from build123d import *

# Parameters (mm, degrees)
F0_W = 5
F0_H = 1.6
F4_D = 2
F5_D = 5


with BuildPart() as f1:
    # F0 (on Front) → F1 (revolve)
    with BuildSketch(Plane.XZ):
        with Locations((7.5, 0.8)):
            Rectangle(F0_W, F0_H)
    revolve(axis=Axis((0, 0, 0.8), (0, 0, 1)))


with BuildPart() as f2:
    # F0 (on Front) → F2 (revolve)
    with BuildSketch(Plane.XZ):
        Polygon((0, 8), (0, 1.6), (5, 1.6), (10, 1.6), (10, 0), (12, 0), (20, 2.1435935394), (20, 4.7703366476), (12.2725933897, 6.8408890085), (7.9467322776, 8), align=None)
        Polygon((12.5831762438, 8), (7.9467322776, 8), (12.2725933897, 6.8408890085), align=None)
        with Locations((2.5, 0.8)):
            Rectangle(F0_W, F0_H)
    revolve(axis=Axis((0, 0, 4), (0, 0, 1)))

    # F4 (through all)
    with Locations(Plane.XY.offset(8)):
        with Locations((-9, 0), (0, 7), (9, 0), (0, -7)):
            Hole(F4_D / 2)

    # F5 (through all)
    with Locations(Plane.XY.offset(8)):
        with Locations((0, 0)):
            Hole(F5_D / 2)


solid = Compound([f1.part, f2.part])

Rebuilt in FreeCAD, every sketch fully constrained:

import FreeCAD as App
import Part
import Sketcher
Q = App.Units.Quantity

doc = App.newDocument("Part")
body = doc.addObject("PartDesign::Body", "Body")

# Sketch on XZ plane
sketch1 = body.newObject("Sketcher::SketchObject", "Sketch")
sketch1.AttachmentSupport = (doc.getObject("XZ_Plane"), [""])
sketch1.MapMode = "FlatFace"
sketch1.addGeometry(Part.LineSegment(App.Vector(5, 1.6, 0), App.Vector(5, 0, 0)), False)
sketch1.addGeometry(Part.LineSegment(App.Vector(5, 0, 0), App.Vector(10, 0, 0)), False)
sketch1.addGeometry(Part.LineSegment(App.Vector(10, 0, 0), App.Vector(10, 1.6, 0)), False)
sketch1.addGeometry(Part.LineSegment(App.Vector(10, 1.6, 0), App.Vector(5, 1.6, 0)), False)
sketch1.addConstraint(Sketcher.Constraint("Coincident", 0, 2, 1, 1))
sketch1.addConstraint(Sketcher.Constraint("Coincident", 1, 2, 2, 1))
sketch1.addConstraint(Sketcher.Constraint("Coincident", 2, 2, 3, 1))
sketch1.addConstraint(Sketcher.Constraint("Coincident", 3, 2, 0, 1))
sketch1.addConstraint(Sketcher.Constraint("Vertical", 0))
sketch1.addConstraint(Sketcher.Constraint("Horizontal", 1))
sketch1.addConstraint(Sketcher.Constraint("Vertical", 2))
sketch1.addConstraint(Sketcher.Constraint("Horizontal", 3))
sketch1.addConstraint(Sketcher.Constraint("PointOnObject", 0, 2, -1))
sketch1.addConstraint(Sketcher.Constraint("DistanceX", 1, 1, 1, 2, 5.0))
sketch1.addConstraint(Sketcher.Constraint("DistanceY", 0, 2, 0, 1, 1.6))
sketch1.addConstraint(Sketcher.Constraint("DistanceX", -1, 1, 0, 2, 5.0))
revolution = body.newObject("PartDesign::Revolution", "Revolution")
revolution.Profile = sketch1
revolution.ReferenceAxis = (sketch1, ["V_Axis"])
revolution.Angle = 360
body2 = doc.addObject("PartDesign::Body", "Body001")

# Sketch on XZ plane
sketch2 = body2.newObject("Sketcher::SketchObject", "Sketch001")
sketch2.AttachmentSupport = (doc.getObject("XZ_Plane001"), [""])
sketch2.MapMode = "FlatFace"
sketch2.addGeometry(Part.LineSegment(App.Vector(0, 8, 0), App.Vector(0, 0, 0)), False)
sketch2.addGeometry(Part.LineSegment(App.Vector(0, 0, 0), App.Vector(5, 0, 0)), False)
sketch2.addGeometry(Part.LineSegment(App.Vector(5, 0, 0), App.Vector(5, 1.6, 0)), False)
sketch2.addGeometry(Part.LineSegment(App.Vector(5, 1.6, 0), App.Vector(10, 1.6, 0)), False)
sketch2.addGeometry(Part.LineSegment(App.Vector(10, 1.6, 0), App.Vector(10, 0, 0)), False)
sketch2.addGeometry(Part.LineSegment(App.Vector(10, 0, 0), App.Vector(12, 0, 0)), False)
sketch2.addGeometry(Part.LineSegment(App.Vector(12, 0, 0), App.Vector(20, 2.1, 0)), False)
sketch2.addGeometry(Part.LineSegment(App.Vector(20, 2.1, 0), App.Vector(20, 4.8, 0)), False)
sketch2.addGeometry(Part.LineSegment(App.Vector(20, 4.8, 0), App.Vector(12.3, 6.8, 0)), False)
sketch2.addGeometry(Part.LineSegment(App.Vector(12.3, 6.8, 0), App.Vector(12.6, 8, 0)), False)
sketch2.addGeometry(Part.LineSegment(App.Vector(12.6, 8, 0), App.Vector(0, 8, 0)), False)
sketch2.addConstraint(Sketcher.Constraint("Coincident", 0, 2, 1, 1))
sketch2.addConstraint(Sketcher.Constraint("Coincident", 1, 2, 2, 1))
sketch2.addConstraint(Sketcher.Constraint("Coincident", 2, 2, 3, 1))
sketch2.addConstraint(Sketcher.Constraint("Coincident", 3, 2, 4, 1))
sketch2.addConstraint(Sketcher.Constraint("Coincident", 4, 2, 5, 1))
sketch2.addConstraint(Sketcher.Constraint("Coincident", 5, 2, 6, 1))
sketch2.addConstraint(Sketcher.Constraint("Coincident", 6, 2, 7, 1))
sketch2.addConstraint(Sketcher.Constraint("Coincident", 7, 2, 8, 1))
sketch2.addConstraint(Sketcher.Constraint("Coincident", 8, 2, 9, 1))
sketch2.addConstraint(Sketcher.Constraint("Coincident", 9, 2, 10, 1))
sketch2.addConstraint(Sketcher.Constraint("Coincident", 10, 2, 0, 1))
sketch2.addConstraint(Sketcher.Constraint("Vertical", 0))
sketch2.addConstraint(Sketcher.Constraint("Horizontal", 1))
sketch2.addConstraint(Sketcher.Constraint("Vertical", 2))
sketch2.addConstraint(Sketcher.Constraint("Horizontal", 3))
sketch2.addConstraint(Sketcher.Constraint("Vertical", 4))
sketch2.addConstraint(Sketcher.Constraint("Horizontal", 5))
sketch2.addConstraint(Sketcher.Constraint("Vertical", 7))
sketch2.addConstraint(Sketcher.Constraint("Horizontal", 10))
sketch2.addConstraint(Sketcher.Constraint("Coincident", 0, 2, -1, 1))
sketch2.addConstraint(Sketcher.Constraint("PointOnObject", 4, 2, -1))
sketch2.addConstraint(Sketcher.Constraint("Perpendicular", 8, 9))
sketch2.addConstraint(Sketcher.Constraint("Equal", 1, 3))
sketch2.addConstraint(Sketcher.Constraint("DistanceX", 1, 1, 1, 2, 5.0))
sketch2.addConstraint(Sketcher.Constraint("DistanceX", 5, 1, 5, 2, 2.0))
sketch2.addConstraint(Sketcher.Constraint("DistanceY", 0, 2, 0, 1, 8.0))
sketch2.addConstraint(Sketcher.Constraint("Angle", 6, Q("15 deg")))
sketch2.addConstraint(Sketcher.Constraint("Angle", 8, Q("165 deg")))
sketch2.addConstraint(Sketcher.Constraint("Distance", 8, 8.0))
sketch2.addConstraint(Sketcher.Constraint("DistanceY", 2, 1, 2, 2, 1.6))
sketch2.addConstraint(Sketcher.Constraint("DistanceX", -1, 1, 6, 2, 20.0))
sketch2.addConstraint(Sketcher.Constraint("Distance", 9, 1.2))
revolution2 = body2.newObject("PartDesign::Revolution", "Revolution001")
revolution2.Profile = sketch2
revolution2.ReferenceAxis = (sketch2, ["V_Axis"])
revolution2.Angle = 360

# Sketch on XY plane
sketch3 = body2.newObject("Sketcher::SketchObject", "Sketch002")
sketch3.AttachmentSupport = (doc.getObject("XY_Plane001"), [""])
sketch3.MapMode = "FlatFace"
sketch3.AttachmentOffset = App.Placement(App.Vector(0, 0, 8), App.Rotation())
sketch3.addGeometry(Part.Circle(App.Vector(-9, 0, 0), App.Vector(0, 0, 1), 1), False)
sketch3.addGeometry(Part.Circle(App.Vector(0, 7, 0), App.Vector(0, 0, 1), 1), False)
sketch3.addGeometry(Part.Circle(App.Vector(9, 0, 0), App.Vector(0, 0, 1), 1), False)
sketch3.addGeometry(Part.Circle(App.Vector(0, -7, 0), App.Vector(0, 0, 1), 1), False)
sketch3.addConstraint(Sketcher.Constraint("Equal", 0, 1))
sketch3.addConstraint(Sketcher.Constraint("Equal", 1, 2))
sketch3.addConstraint(Sketcher.Constraint("Equal", 2, 3))
sketch3.addConstraint(Sketcher.Constraint("Symmetric", 0, 3, 2, 3, -1, 1))
sketch3.addConstraint(Sketcher.Constraint("Symmetric", 1, 3, 3, 3, -1, 1))
sketch3.addConstraint(Sketcher.Constraint("PointOnObject", 0, 3, -1))
sketch3.addConstraint(Sketcher.Constraint("PointOnObject", 1, 3, -2))
sketch3.addConstraint(Sketcher.Constraint("Diameter", 0, 2.0))
sketch3.addConstraint(Sketcher.Constraint("DistanceX", 0, 3, -1, 1, 9.0))
sketch3.addConstraint(Sketcher.Constraint("DistanceY", -1, 1, 1, 3, 7.0))
doc.recompute()
hole = body2.newObject("PartDesign::Hole", "Hole")
hole.Profile = sketch3
hole.ThreadType = "None"
hole.Diameter = 2
hole.DepthType = "ThroughAll"

# Sketch on XY plane
sketch4 = body2.newObject("Sketcher::SketchObject", "Sketch003")
sketch4.AttachmentSupport = (doc.getObject("XY_Plane001"), [""])
sketch4.MapMode = "FlatFace"
sketch4.AttachmentOffset = App.Placement(App.Vector(0, 0, 8), App.Rotation())
sketch4.addGeometry(Part.Circle(App.Vector(0, 0, 0), App.Vector(0, 0, 1), 2.5), False)
sketch4.addConstraint(Sketcher.Constraint("Coincident", 0, 3, -1, 1))
sketch4.addConstraint(Sketcher.Constraint("Diameter", 0, 5.0))
doc.recompute()
hole2 = body2.newObject("PartDesign::Hole", "Hole001")
hole2.Profile = sketch4
hole2.ThreadType = "None"
hole2.Diameter = 5
hole2.DepthType = "ThroughAll"

doc.recompute()
